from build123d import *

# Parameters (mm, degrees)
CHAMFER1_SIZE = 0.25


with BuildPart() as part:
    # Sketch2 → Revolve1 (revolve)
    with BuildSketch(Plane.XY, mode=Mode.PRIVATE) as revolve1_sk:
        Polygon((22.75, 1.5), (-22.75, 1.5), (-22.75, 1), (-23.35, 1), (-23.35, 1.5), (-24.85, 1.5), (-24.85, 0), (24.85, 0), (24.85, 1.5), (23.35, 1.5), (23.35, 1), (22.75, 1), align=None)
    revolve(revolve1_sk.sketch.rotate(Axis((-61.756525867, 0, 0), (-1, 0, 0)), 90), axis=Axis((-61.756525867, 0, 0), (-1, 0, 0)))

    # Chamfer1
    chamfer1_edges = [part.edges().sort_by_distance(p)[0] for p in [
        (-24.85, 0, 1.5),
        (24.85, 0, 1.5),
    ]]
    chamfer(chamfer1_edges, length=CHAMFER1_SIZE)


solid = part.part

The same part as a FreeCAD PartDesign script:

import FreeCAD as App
import Part
import Sketcher

V = App.Vector
Q = App.Units.Quantity


def edges_at(feature, points):
    """Names of the edges that pass closest to the given points."""
    edges = feature.Shape.Edges
    near = lambda p: min(range(len(edges)), key=lambda i: edges[i].distToShape(Part.Vertex(*p))[0])
    return sorted({f"Edge{near(p) + 1}" for p in points})


def add_polygon(sketch, points):
    """Adds a closed chain of lines whose ends are joined by coincident constraints."""
    first, n = sketch.GeometryCount, len(points)
    for a, b in zip(points, points[1:] + points[:1]):
        sketch.addGeometry(Part.LineSegment(App.Vector(*a, 0), App.Vector(*b, 0)), False)
    for i in range(n):
        sketch.addConstraint(Sketcher.Constraint("Coincident", first + i, 2, first + (i + 1) % n, 1))

doc = App.newDocument("Part")
body = doc.addObject("PartDesign::Body", "Body")

# Sketch on XY plane
sketch1 = body.newObject("Sketcher::SketchObject", "Sketch")
sketch1.AttachmentSupport = (doc.getObject("XY_Plane"), [""])
sketch1.MapMode = "FlatFace"
add_polygon(sketch1, [(22.8, 1.5), (-22.8, 1.5), (-22.8, 1), (-23.4, 1), (-23.4, 1.5), (-24.9, 1.5), (-24.9, 0), (24.9, 0), (24.9, 1.5), (23.4, 1.5), (23.4, 1), (22.8, 1)])  # lines 0-11
sketch1.addConstraint([
    Sketcher.Constraint("Horizontal", 0),
    Sketcher.Constraint("Vertical", 1),
    Sketcher.Constraint("Horizontal", 2),
    Sketcher.Constraint("Vertical", 3),
    Sketcher.Constraint("Horizontal", 4),
    Sketcher.Constraint("Vertical", 5),
    Sketcher.Constraint("Horizontal", 6),
    Sketcher.Constraint("Vertical", 7),
    Sketcher.Constraint("Horizontal", 8),
    Sketcher.Constraint("Vertical", 9),
    Sketcher.Constraint("Horizontal", 10),
    Sketcher.Constraint("Vertical", 11),
    Sketcher.Constraint("Symmetric", 5, 2, 6, 2, -1, 1),
    Sketcher.Constraint("Symmetric", 3, 2, 8, 2, -2),
    Sketcher.Constraint("Symmetric", 1, 2, 10, 2, -2),
    Sketcher.Constraint("Horizontal", 0, 2, 3, 2),
    Sketcher.Constraint("Equal", 8, 5),
    Sketcher.Constraint("DistanceX", 0, 2, 0, 1, Q("45.5 mm")),
    Sketcher.Constraint("DistanceX", 2, 2, 2, 1, Q("0.6 mm")),
    Sketcher.Constraint("DistanceX", 4, 2, 4, 1, Q("1.5 mm")),
    Sketcher.Constraint("DistanceY", 1, 2, 1, 1, Q("0.5 mm")),
])
revolution = body.newObject("PartDesign::Revolution", "Revolution")
revolution.Profile = sketch1
revolution.ReferenceAxis = (sketch1, ["H_Axis"])
revolution.Angle = 360
doc.recompute()

chamfer = body.newObject("PartDesign::Chamfer", "Chamfer")
chamfer.Base = (revolution, edges_at(revolution, [(-24.85, 0, 1.5), (24.85, 0, 1.5)]))
chamfer.Size = 0.25

doc.recompute()
